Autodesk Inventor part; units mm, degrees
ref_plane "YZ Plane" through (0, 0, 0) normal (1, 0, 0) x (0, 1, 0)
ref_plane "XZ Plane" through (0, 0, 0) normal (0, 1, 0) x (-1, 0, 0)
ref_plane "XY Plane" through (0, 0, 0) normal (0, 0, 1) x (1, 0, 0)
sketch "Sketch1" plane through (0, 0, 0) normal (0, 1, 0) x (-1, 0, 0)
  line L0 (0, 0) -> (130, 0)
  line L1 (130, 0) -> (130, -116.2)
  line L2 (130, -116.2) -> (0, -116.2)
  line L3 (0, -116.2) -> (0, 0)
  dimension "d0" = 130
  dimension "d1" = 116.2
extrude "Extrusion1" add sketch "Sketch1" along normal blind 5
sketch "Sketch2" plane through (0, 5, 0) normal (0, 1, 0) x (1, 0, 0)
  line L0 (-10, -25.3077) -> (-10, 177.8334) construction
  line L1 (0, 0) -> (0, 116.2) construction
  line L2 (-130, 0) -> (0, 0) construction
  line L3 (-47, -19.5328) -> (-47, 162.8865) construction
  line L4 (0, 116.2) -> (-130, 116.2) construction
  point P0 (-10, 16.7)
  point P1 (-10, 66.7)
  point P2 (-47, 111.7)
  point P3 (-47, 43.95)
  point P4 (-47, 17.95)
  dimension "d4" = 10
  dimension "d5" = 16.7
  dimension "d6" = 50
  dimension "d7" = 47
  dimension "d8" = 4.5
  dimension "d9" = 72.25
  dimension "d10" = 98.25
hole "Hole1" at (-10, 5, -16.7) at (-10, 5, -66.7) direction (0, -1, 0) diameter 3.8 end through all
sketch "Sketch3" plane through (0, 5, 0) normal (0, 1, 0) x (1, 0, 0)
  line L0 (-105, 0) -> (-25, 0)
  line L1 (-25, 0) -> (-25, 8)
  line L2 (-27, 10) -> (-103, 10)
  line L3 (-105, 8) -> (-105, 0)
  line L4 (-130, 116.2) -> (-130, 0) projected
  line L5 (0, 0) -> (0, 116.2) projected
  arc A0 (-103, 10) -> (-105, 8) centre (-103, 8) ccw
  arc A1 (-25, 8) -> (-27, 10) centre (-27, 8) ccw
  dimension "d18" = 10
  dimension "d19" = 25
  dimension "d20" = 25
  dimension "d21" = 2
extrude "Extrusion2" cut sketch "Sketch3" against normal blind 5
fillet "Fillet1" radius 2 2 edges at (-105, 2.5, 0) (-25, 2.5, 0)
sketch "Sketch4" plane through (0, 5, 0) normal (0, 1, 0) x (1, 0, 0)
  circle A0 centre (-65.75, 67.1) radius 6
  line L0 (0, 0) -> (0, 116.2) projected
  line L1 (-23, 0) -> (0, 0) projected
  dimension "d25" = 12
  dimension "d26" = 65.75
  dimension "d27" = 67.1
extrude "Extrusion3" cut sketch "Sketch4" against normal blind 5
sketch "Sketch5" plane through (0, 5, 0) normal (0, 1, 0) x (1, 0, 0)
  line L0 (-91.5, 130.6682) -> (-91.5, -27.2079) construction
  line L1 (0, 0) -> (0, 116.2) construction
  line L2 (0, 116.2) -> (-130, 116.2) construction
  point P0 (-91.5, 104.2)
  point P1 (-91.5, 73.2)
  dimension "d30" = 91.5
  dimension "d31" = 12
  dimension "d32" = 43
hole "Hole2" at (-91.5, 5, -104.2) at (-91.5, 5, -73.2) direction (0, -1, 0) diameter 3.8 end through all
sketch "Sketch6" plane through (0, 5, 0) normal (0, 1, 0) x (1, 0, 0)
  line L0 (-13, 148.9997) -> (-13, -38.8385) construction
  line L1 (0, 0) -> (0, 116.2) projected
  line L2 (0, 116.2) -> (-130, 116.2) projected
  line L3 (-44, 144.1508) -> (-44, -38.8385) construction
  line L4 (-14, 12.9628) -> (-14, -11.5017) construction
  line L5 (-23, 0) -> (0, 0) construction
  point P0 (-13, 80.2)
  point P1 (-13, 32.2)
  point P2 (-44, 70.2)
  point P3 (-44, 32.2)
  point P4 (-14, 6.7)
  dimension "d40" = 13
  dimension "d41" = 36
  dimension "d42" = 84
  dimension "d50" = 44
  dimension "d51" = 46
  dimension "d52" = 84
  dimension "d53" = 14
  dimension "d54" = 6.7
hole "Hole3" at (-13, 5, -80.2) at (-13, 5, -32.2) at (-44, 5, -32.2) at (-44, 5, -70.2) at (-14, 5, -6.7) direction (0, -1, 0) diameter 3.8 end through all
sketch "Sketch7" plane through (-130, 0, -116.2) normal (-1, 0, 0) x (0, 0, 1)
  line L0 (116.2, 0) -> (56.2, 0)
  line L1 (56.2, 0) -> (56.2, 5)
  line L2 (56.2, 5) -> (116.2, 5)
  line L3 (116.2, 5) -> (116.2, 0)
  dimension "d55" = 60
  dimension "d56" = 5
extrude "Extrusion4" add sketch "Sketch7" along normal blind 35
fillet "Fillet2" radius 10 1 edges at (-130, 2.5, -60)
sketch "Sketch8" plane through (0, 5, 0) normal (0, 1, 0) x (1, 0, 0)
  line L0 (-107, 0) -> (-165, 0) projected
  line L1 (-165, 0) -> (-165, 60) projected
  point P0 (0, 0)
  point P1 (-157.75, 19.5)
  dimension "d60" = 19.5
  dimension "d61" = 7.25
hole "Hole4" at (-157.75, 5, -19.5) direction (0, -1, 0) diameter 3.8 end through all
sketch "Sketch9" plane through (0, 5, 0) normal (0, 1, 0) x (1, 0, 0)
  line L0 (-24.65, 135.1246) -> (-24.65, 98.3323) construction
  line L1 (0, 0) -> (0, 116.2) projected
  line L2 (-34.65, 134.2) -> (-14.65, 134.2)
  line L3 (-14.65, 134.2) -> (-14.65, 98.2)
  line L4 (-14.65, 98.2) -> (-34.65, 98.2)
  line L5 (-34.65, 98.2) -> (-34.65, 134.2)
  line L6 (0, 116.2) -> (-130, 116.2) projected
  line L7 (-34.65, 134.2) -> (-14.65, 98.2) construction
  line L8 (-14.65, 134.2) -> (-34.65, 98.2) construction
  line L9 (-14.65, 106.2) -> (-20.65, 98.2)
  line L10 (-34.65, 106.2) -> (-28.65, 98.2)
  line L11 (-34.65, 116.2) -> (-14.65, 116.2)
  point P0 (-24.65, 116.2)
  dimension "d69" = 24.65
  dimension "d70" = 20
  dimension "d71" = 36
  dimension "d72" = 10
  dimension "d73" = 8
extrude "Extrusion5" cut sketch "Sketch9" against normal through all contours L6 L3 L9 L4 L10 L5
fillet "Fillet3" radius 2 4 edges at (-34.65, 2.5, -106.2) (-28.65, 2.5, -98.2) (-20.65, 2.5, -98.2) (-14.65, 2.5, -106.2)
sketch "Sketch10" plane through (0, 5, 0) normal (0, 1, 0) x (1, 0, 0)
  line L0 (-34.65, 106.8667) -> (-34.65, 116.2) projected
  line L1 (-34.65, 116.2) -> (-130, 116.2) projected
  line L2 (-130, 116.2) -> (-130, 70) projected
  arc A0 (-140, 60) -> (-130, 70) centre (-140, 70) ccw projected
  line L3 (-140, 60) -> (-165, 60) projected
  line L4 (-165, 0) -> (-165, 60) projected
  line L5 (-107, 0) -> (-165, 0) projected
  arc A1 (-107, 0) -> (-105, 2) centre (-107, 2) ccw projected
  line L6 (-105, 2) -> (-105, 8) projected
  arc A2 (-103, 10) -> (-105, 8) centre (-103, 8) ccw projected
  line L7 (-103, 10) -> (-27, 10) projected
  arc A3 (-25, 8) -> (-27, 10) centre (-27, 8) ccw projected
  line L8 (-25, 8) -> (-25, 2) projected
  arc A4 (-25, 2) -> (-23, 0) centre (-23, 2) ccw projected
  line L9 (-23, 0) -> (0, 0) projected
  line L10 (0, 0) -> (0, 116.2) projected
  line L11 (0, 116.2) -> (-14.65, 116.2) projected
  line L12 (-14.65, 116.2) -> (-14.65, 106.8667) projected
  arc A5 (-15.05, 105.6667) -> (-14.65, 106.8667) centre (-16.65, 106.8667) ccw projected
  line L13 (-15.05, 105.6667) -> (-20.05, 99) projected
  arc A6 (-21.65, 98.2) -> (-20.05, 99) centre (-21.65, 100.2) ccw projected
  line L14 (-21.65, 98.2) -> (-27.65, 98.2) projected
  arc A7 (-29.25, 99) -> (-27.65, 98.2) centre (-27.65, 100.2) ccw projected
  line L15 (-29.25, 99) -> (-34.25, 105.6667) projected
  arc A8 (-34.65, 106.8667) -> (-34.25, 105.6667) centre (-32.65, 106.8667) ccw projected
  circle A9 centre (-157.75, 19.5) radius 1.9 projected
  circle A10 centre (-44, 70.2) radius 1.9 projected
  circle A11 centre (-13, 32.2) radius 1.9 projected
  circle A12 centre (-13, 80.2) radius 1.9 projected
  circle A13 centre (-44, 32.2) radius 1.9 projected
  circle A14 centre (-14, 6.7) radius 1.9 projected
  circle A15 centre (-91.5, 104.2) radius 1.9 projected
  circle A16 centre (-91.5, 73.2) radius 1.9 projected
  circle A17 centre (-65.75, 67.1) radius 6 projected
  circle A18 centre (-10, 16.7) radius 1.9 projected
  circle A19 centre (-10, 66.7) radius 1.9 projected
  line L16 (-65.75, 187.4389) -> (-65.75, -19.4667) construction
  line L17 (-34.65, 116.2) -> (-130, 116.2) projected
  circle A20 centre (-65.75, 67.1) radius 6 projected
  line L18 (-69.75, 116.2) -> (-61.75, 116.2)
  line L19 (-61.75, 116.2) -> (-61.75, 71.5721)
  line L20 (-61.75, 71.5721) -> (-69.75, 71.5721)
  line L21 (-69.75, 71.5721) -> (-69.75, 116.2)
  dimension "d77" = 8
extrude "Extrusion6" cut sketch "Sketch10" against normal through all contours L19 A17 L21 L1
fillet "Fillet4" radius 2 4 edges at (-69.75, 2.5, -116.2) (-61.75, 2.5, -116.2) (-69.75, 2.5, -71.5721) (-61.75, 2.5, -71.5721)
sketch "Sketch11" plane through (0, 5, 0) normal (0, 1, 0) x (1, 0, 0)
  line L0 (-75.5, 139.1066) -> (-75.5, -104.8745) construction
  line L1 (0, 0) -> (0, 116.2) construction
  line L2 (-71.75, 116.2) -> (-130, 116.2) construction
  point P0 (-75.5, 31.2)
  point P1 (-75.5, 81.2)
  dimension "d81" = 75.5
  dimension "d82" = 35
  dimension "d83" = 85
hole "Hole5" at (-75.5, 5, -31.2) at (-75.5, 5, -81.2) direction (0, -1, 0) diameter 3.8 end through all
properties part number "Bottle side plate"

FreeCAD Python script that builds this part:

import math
import FreeCAD as App
import Part
import Sketcher
from FreeCAD import Vector


def edges_at(feature, points):
    """Names of the edges that pass closest to the given points."""
    edges = feature.Shape.Edges
    near = lambda p: min(range(len(edges)), key=lambda i: edges[i].distToShape(Part.Vertex(*p))[0])
    return sorted({f"Edge{near(p) + 1}" for p in points})

doc = App.newDocument("Part")
body = doc.addObject("PartDesign::Body", "Body")

# Sketch on XZ plane
sketch1 = doc.addObject("Sketcher::SketchObject", "Sketch")
body.addObject(sketch1)
sketch1.AttachmentSupport = (doc.XZ_Plane, [""])
sketch1.MapMode = "FlatFace"
sketch1.addGeometry([
    Part.LineSegment(Vector(-130, 0, 0), Vector(0, 0, 0)),
    Part.LineSegment(Vector(0, 0, 0), Vector(0, -116, 0)),
    Part.LineSegment(Vector(0, -116, 0), Vector(-130, -116, 0)),
    Part.LineSegment(Vector(-130, -116, 0), Vector(-130, 0, 0)),
], False)
sketch1.addConstraint([
    Sketcher.Constraint("Coincident", 0, 2, 1, 1),
    Sketcher.Constraint("Coincident", 1, 2, 2, 1),
    Sketcher.Constraint("Coincident", 2, 2, 3, 1),
    Sketcher.Constraint("Coincident", 3, 2, 0, 1),
    Sketcher.Constraint("Horizontal", 0),
    Sketcher.Constraint("Vertical", 1),
    Sketcher.Constraint("Horizontal", 2),
    Sketcher.Constraint("Vertical", 3),
    Sketcher.Constraint("Coincident", 0, 2, -1, 1),
    Sketcher.Constraint("DistanceX", 0, 1, 0, 2, 130.0),
    Sketcher.Constraint("DistanceY", 1, 2, 1, 1, 116.2),
])
pad1 = doc.addObject("PartDesign::Pad", "Pad")
body.addObject(pad1)
pad1.Profile = sketch1
pad1.Length = 5
pad1.Reversed = True

# Sketch on XZ plane
sketch2 = doc.addObject("Sketcher::SketchObject", "Sketch001")
body.addObject(sketch2)
sketch2.AttachmentSupport = (doc.XZ_Plane, [""])
sketch2.MapMode = "FlatFace"
sketch2.AttachmentOffset = App.Placement(Vector(0, 0, -5), App.Rotation())
sketch2.addGeometry([
    Part.Circle(Vector(-10, -16.7, 0), Vector(0, 0, 1), 1.9),
    Part.Circle(Vector(-10, -66.7, 0), Vector(0, 0, 1), 1.9),
], False)
sketch2.addConstraint([
    Sketcher.Constraint("Equal", 0, 1),
    Sketcher.Constraint("Vertical", 0, 3, 1, 3),
    Sketcher.Constraint("Diameter", 0, 3.8),
    Sketcher.Constraint("DistanceX", 0, 3, -1, 1, 10.0),
    Sketcher.Constraint("DistanceY", 1, 3, 0, 3, 50.0),
    Sketcher.Constraint("DistanceY", 0, 3, -1, 1, 16.7),
])
doc.recompute()
hole = doc.addObject("PartDesign::Hole", "Hole")
body.addObject(hole)
hole.Profile = sketch2
hole.ThreadType = "None"
hole.Diameter = 3.8
hole.DepthType = "ThroughAll"
hole.Reversed = True

# Sketch on XZ plane
sketch3 = doc.addObject("Sketcher::SketchObject", "Sketch002")
body.addObject(sketch3)
sketch3.AttachmentSupport = (doc.XZ_Plane, [""])
sketch3.MapMode = "FlatFace"
sketch3.AttachmentOffset = App.Placement(Vector(0, 0, -5), App.Rotation())
sketch3.addGeometry([
    Part.LineSegment(Vector(-105, -8, 0), Vector(-105, 0, 0)),  # 0
    Part.LineSegment(Vector(-105, 0, 0), Vector(-25, 0, 0)),  # 1
    Part.LineSegment(Vector(-25, 0, 0), Vector(-25, -8, 0)),  # 2
    Part.ArcOfCircle(Part.Circle(Vector(-27, -8, 0), Vector(0, 0, 1), 2), math.radians(-90), math.radians(0)),  # 3
    Part.LineSegment(Vector(-27, -10, 0), Vector(-103, -10, 0)),  # 4
    Part.ArcOfCircle(Part.Circle(Vector(-103, -8, 0), Vector(0, 0, 1), 2), math.radians(180), math.radians(270)),  # 5
], False)
sketch3.addConstraint([
    Sketcher.Constraint("Coincident", 0, 2, 1, 1),
    Sketcher.Constraint("Coincident", 1, 2, 2, 1),
    Sketcher.Constraint("Tangent", 2, 2, 3, 2),
    Sketcher.Constraint("Tangent", 3, 1, 4, 1),
    Sketcher.Constraint("Tangent", 4, 2, 5, 2),
    Sketcher.Constraint("Tangent", 5, 1, 0, 1),
    Sketcher.Constraint("Vertical", 0),
    Sketcher.Constraint("Horizontal", 1),
    Sketcher.Constraint("Vertical", 2),
    Sketcher.Constraint("Horizontal", 4),
    Sketcher.Constraint("Equal", 3, 5),
    Sketcher.Constraint("PointOnObject", 0, 2, -1),
    Sketcher.Constraint("Radius", 3, 2.0),
    Sketcher.Constraint("DistanceX", 1, 2, -1, 1, 25.0),
    Sketcher.Constraint("DistanceY", 3, 1, -1, 1, 10.0),
    Sketcher.Constraint("DistanceX", 1, 1, 1, 2, 80.0),
])
pocket1 = doc.addObject("PartDesign::Pocket", "Pocket")
body.addObject(pocket1)
pocket1.Profile = sketch3
pocket1.Length = 5
pocket1.Reversed = True
doc.recompute()

fillet = doc.addObject("PartDesign::Fillet", "Fillet")
body.addObject(fillet)
fillet.Base = (pocket1, edges_at(pocket1, [(-105, 2.5, 0), (-25, 2.5, 0)]))
fillet.Radius = 2

# Sketch on XZ plane
sketch4 = doc.addObject("Sketcher::SketchObject", "Sketch003")
body.addObject(sketch4)
sketch4.AttachmentSupport = (doc.XZ_Plane, [""])
sketch4.MapMode = "FlatFace"
sketch4.AttachmentOffset = App.Placement(Vector(0, 0, -5), App.Rotation())
sketch4.addGeometry(Part.Circle(Vector(-66, -67, 0), Vector(0, 0, 1), 6), False)
sketch4.addConstraint([
    Sketcher.Constraint("Diameter", 0, 12.0),
    Sketcher.Constraint("DistanceY", 0, 3, -1, 1, 67.1),
    Sketcher.Constraint("DistanceX", 0, 3, -1, 1, 65.75),
])
pocket2 = doc.addObject("PartDesign::Pocket", "Pocket001")
body.addObject(pocket2)
pocket2.Profile = sketch4
pocket2.Length = 5
pocket2.Reversed = True

# Sketch on XZ plane
sketch5 = doc.addObject("Sketcher::SketchObject", "Sketch004")
body.addObject(sketch5)
sketch5.AttachmentSupport = (doc.XZ_Plane, [""])
sketch5.MapMode = "FlatFace"
sketch5.AttachmentOffset = App.Placement(Vector(0, 0, -5), App.Rotation())
sketch5.addGeometry([
    Part.Circle(Vector(-91.5, -104.2, 0), Vector(0, 0, 1), 1.9),
    Part.Circle(Vector(-91.5, -73.2, 0), Vector(0, 0, 1), 1.9),
], False)
sketch5.addConstraint([
    Sketcher.Constraint("Equal", 0, 1),
    Sketcher.Constraint("Vertical", 0, 3, 1, 3),
    Sketcher.Constraint("Diameter", 0, 3.8),
    Sketcher.Constraint("DistanceY", 0, 3, 1, 3, 31.0),
    Sketcher.Constraint("DistanceX", 0, 3, -1, 1, 91.5),
    Sketcher.Constraint("DistanceY", 0, 3, -1, 1, 104.2),
])
doc.recompute()
hole2 = doc.addObject("PartDesign::Hole", "Hole001")
body.addObject(hole2)
hole2.Profile = sketch5
hole2.ThreadType = "None"
hole2.Diameter = 3.8
hole2.DepthType = "ThroughAll"
hole2.Reversed = True

# Sketch on XZ plane
sketch6 = doc.addObject("Sketcher::SketchObject", "Sketch005")
body.addObject(sketch6)
sketch6.AttachmentSupport = (doc.XZ_Plane, [""])
sketch6.MapMode = "FlatFace"
sketch6.AttachmentOffset = App.Placement(Vector(0, 0, -5), App.Rotation())
sketch6.addGeometry([
    Part.Circle(Vector(-13, -80.2, 0), Vector(0, 0, 1), 1.9),  # 0
    Part.Circle(Vector(-13, -32.2, 0), Vector(0, 0, 1), 1.9),  # 1
    Part.Circle(Vector(-44, -32.2, 0), Vector(0, 0, 1), 1.9),  # 2
    Part.Circle(Vector(-44, -70.2, 0), Vector(0, 0, 1), 1.9),  # 3
    Part.Circle(Vector(-14, -6.7, 0), Vector(0, 0, 1), 1.9),  # 4
], False)
sketch6.addConstraint([
    Sketcher.Constraint("Equal", 0, 1),
    Sketcher.Constraint("Equal", 1, 2),
    Sketcher.Constraint("Equal", 2, 3),
    Sketcher.Constraint("Equal", 3, 4),
    Sketcher.Constraint("Horizontal", 1, 3, 2, 3),
    Sketcher.Constraint("Vertical", 0, 3, 1, 3),
    Sketcher.Constraint("Vertical", 2, 3, 3, 3),
    Sketcher.Constraint("Diameter", 0, 3.8),
    Sketcher.Constraint("DistanceX", 0, 3, -1, 1, 13.0),
    Sketcher.Constraint("DistanceX", 2, 3, -1, 1, 44.0),
    Sketcher.Constraint("DistanceX", 4, 3, -1, 1, 14.0),
    Sketcher.Constraint("DistanceY", 0, 3, 1, 3, 48.0),
    Sketcher.Constraint("DistanceY", 0, 3, 3, 3, 10.0),
    Sketcher.Constraint("DistanceY", 0, 3, -1, 1, 80.2),
    Sketcher.Constraint("DistanceY", 4, 3, -1, 1, 6.7),
])
doc.recompute()
hole3 = doc.addObject("PartDesign::Hole", "Hole002")
body.addObject(hole3)
hole3.Profile = sketch6
hole3.ThreadType = "None"
hole3.Diameter = 3.8
hole3.DepthType = "ThroughAll"
hole3.Reversed = True

# Sketch on YZ plane
sketch7 = doc.addObject("Sketcher::SketchObject", "Sketch006")
body.addObject(sketch7)
sketch7.AttachmentSupport = (doc.YZ_Plane, [""])
sketch7.MapMode = "FlatFace"
sketch7.AttachmentOffset = App.Placement(Vector(0, 0, -130), App.Rotation())
sketch7.addGeometry([
    Part.LineSegment(Vector(0, -60, 0), Vector(0, 0, 0)),
    Part.LineSegment(Vector(0, 0, 0), Vector(5, 0, 0)),
    Part.LineSegment(Vector(5, 0, 0), Vector(5, -60, 0)),
    Part.LineSegment(Vector(5, -60, 0), Vector(0, -60, 0)),
], False)
sketch7.addConstraint([
    Sketcher.Constraint("Coincident", 0, 2, 1, 1),
    Sketcher.Constraint("Coincident", 1, 2, 2, 1),
    Sketcher.Constraint("Coincident", 2, 2, 3, 1),
    Sketcher.Constraint("Coincident", 3, 2, 0, 1),
    Sketcher.Constraint("Vertical", 0),
    Sketcher.Constraint("Horizontal", 1),
    Sketcher.Constraint("Vertical", 2),
    Sketcher.Constraint("Horizontal", 3),
    Sketcher.Constraint("Coincident", 0, 2, -1, 1),
    Sketcher.Constraint("DistanceX", 1, 1, 1, 2, 5.0),
    Sketcher.Constraint("DistanceY", 0, 1, 0, 2, 60.0),
])
pad2 = doc.addObject("PartDesign::Pad", "Pad001")
body.addObject(pad2)
pad2.Profile = sketch7
pad2.Length = 35
pad2.Reversed = True
doc.recompute()

fillet2 = doc.addObject("PartDesign::Fillet", "Fillet001")
body.addObject(fillet2)
fillet2.Base = (pad2, edges_at(pad2, [(-130, 2.5, -60)]))
fillet2.Radius = 10

# Sketch on XZ plane
sketch8 = doc.addObject("Sketcher::SketchObject", "Sketch007")
body.addObject(sketch8)
sketch8.AttachmentSupport = (doc.XZ_Plane, [""])
sketch8.MapMode = "FlatFace"
sketch8.AttachmentOffset = App.Placement(Vector(0, 0, -5), App.Rotation())
sketch8.addGeometry(Part.Circle(Vector(-157.8, -19.5, 0), Vector(0, 0, 1), 1.9), False)
sketch8.addConstraint([
    Sketcher.Constraint("Diameter", 0, 3.8),
    Sketcher.Constraint("DistanceY", 0, 3, -1, 1, 19.5),
    Sketcher.Constraint("DistanceX", 0, 3, -1, 1, 157.75),
])
doc.recompute()
hole4 = doc.addObject("PartDesign::Hole", "Hole003")
body.addObject(hole4)
hole4.Profile = sketch8
hole4.ThreadType = "None"
hole4.Diameter = 3.8
hole4.DepthType = "ThroughAll"
hole4.Reversed = True

# Sketch on XZ plane
sketch9 = doc.addObject("Sketcher::SketchObject", "Sketch008")
body.addObject(sketch9)
sketch9.AttachmentSupport = (doc.XZ_Plane, [""])
sketch9.MapMode = "FlatFace"
sketch9.AttachmentOffset = App.Placement(Vector(0, 0, -5), App.Rotation())
sketch9.addGeometry([
    Part.LineSegment(Vector(-15, -116, 0), Vector(-35, -116, 0)),  # 0
    Part.LineSegment(Vector(-35, -116, 0), Vector(-35, -106, 0)),  # 1
    Part.LineSegment(Vector(-35, -106, 0), Vector(-29, -98, 0)),  # 2
    Part.LineSegment(Vector(-29, -98, 0), Vector(-21, -98, 0)),  # 3
    Part.LineSegment(Vector(-21, -98, 0), Vector(-15, -106, 0)),  # 4
    Part.LineSegment(Vector(-15, -106, 0), Vector(-15, -116, 0)),  # 5
], False)
sketch9.addConstraint([
    Sketcher.Constraint("Coincident", 0, 2, 1, 1),
    Sketcher.Constraint("Coincident", 1, 2, 2, 1),
    Sketcher.Constraint("Coincident", 2, 2, 3, 1),
    Sketcher.Constraint("Coincident", 3, 2, 4, 1),
    Sketcher.Constraint("Coincident", 4, 2, 5, 1),
    Sketcher.Constraint("Coincident", 5, 2, 0, 1),
    Sketcher.Constraint("Horizontal", 0),
    Sketcher.Constraint("Vertical", 1),
    Sketcher.Constraint("Horizontal", 3),
    Sketcher.Constraint("Vertical", 5),
    Sketcher.Constraint("Horizontal", 1, 2, 4, 2),
    Sketcher.Constraint("Equal", 2, 4),
    Sketcher.Constraint("DistanceX", 0, 2, 0, 1, 20.0),
    Sketcher.Constraint("DistanceX", 3, 1, 3, 2, 8.0),
    Sketcher.Constraint("DistanceY", 1, 1, 1, 2, 10.0),
    Sketcher.Constraint("Distance", 2, 10.0),
    Sketcher.Constraint("DistanceY", 0, 2, -1, 1, 116.2),
    Sketcher.Constraint("DistanceX", 0, 2, -1, 1, 34.65),
])
pocket3 = doc.addObject("PartDesign::Pocket", "Pocket002")
body.addObject(pocket3)
pocket3.Profile = sketch9
pocket3.Type = "ThroughAll"
pocket3.Reversed = True
doc.recompute()

fillet3 = doc.addObject("PartDesign::Fillet", "Fillet002")
body.addObject(fillet3)
fillet3.Base = (pocket3, edges_at(pocket3, [
    (-34.65, 2.5, -106.2),
    (-28.65, 2.5, -98.2),
    (-20.65, 2.5, -98.2),
    (-14.65, 2.5, -106.2),
]))
fillet3.Radius = 2

# Sketch on XZ plane
sketch10 = doc.addObject("Sketcher::SketchObject", "Sketch009")
body.addObject(sketch10)
sketch10.AttachmentSupport = (doc.XZ_Plane, [""])
sketch10.MapMode = "FlatFace"
sketch10.AttachmentOffset = App.Placement(Vector(0, 0, -5), App.Rotation())
sketch10.addGeometry([
    Part.LineSegment(Vector(-62, -72, 0), Vector(-62, -116, 0)),
    Part.LineSegment(Vector(-62, -116, 0), Vector(-70, -116, 0)),
    Part.LineSegment(Vector(-70, -116, 0), Vector(-70, -72, 0)),
    Part.ArcOfCircle(Part.Circle(Vector(-66, -67, 0), Vector(0, 0, 1), 6), math.radians(-132), math.radians(-48)),
], False)
sketch10.addConstraint([
    Sketcher.Constraint("Coincident", 0, 2, 1, 1),
    Sketcher.Constraint("Coincident", 1, 2, 2, 1),
    Sketcher.Constraint("Coincident", 2, 2, 3, 1),
    Sketcher.Constraint("Coincident", 3, 2, 0, 1),
    Sketcher.Constraint("Vertical", 0),
    Sketcher.Constraint("Horizontal", 1),
    Sketcher.Constraint("Vertical", 2),
    Sketcher.Constraint("Horizontal", 2, 2, 3, 2),
    Sketcher.Constraint("DistanceX", 1, 2, 1, 1, 8.0),
    Sketcher.Constraint("Radius", 3, 6.0),
    Sketcher.Constraint("DistanceY", 3, 3, -1, 1, 67.1),
    Sketcher.Constraint("DistanceY", 0, 2, -1, 1, 116.2),
    Sketcher.Constraint("DistanceX", 3, 3, -1, 1, 65.75),
])
pocket4 = doc.addObject("PartDesign::Pocket", "Pocket003")
body.addObject(pocket4)
pocket4.Profile = sketch10
pocket4.Type = "ThroughAll"
pocket4.Reversed = True
doc.recompute()

fillet4 = doc.addObject("PartDesign::Fillet", "Fillet003")
body.addObject(fillet4)
fillet4.Base = (pocket4, edges_at(pocket4, [
    (-69.75, 2.5, -116.2),
    (-61.75, 2.5, -116.2),
    (-69.75, 2.5, -71.572),
    (-61.75, 2.5, -71.572),
]))
fillet4.Radius = 2

# Sketch on XZ plane
sketch11 = doc.addObject("Sketcher::SketchObject", "Sketch010")
body.addObject(sketch11)
sketch11.AttachmentSupport = (doc.XZ_Plane, [""])
sketch11.MapMode = "FlatFace"
sketch11.AttachmentOffset = App.Placement(Vector(0, 0, -5), App.Rotation())
sketch11.addGeometry([
    Part.Circle(Vector(-75.5, -31.2, 0), Vector(0, 0, 1), 1.9),
    Part.Circle(Vector(-75.5, -81.2, 0), Vector(0, 0, 1), 1.9),
], False)
sketch11.addConstraint([
    Sketcher.Constraint("Equal", 0, 1),
    Sketcher.Constraint("Vertical", 0, 3, 1, 3),
    Sketcher.Constraint("Diameter", 0, 3.8),
    Sketcher.Constraint("DistanceY", 1, 3, 0, 3, 50.0),
    Sketcher.Constraint("DistanceX", 0, 3, -1, 1, 75.5),
    Sketcher.Constraint("DistanceY", 0, 3, -1, 1, 31.2),
])
doc.recompute()
hole5 = doc.addObject("PartDesign::Hole", "Hole004")
body.addObject(hole5)
hole5.Profile = sketch11
hole5.ThreadType = "None"
hole5.Diameter = 3.8
hole5.DepthType = "ThroughAll"
hole5.Reversed = True

doc.recompute()
